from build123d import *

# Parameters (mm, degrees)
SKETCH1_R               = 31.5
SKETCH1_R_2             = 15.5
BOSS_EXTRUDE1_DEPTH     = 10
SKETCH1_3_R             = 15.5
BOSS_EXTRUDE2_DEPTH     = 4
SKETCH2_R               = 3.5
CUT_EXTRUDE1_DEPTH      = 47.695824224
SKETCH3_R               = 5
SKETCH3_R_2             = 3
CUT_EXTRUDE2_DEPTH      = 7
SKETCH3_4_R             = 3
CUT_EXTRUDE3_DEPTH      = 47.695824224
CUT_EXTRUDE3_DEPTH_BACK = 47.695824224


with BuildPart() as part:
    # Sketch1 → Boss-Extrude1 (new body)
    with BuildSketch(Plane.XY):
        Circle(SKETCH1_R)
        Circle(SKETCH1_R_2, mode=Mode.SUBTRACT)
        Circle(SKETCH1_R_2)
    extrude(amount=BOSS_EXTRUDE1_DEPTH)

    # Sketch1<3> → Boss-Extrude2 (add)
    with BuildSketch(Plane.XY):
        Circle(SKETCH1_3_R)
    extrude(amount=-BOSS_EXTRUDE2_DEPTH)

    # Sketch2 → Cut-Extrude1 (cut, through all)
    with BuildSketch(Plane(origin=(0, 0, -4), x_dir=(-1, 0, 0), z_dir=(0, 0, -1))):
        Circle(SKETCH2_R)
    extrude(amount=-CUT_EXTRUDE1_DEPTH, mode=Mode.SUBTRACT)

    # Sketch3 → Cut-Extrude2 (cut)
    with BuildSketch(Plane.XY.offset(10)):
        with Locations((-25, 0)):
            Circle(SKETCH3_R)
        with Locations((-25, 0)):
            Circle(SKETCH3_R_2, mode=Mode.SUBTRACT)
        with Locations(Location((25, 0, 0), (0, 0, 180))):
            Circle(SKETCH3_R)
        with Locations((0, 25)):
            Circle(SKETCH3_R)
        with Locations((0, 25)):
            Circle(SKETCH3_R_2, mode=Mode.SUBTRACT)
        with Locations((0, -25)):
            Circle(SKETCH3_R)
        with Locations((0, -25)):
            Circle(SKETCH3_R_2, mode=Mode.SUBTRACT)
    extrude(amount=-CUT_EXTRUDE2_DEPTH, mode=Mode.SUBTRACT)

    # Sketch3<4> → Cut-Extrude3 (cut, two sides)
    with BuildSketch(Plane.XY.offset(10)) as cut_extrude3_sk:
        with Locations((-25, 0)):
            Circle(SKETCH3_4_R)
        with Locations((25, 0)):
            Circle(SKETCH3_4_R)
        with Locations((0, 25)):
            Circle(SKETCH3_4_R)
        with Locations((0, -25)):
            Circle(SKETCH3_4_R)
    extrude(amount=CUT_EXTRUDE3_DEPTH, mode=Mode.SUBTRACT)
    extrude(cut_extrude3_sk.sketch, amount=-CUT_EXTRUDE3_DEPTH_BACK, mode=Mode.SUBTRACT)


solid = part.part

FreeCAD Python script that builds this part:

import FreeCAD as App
import Part
import Sketcher
Q = App.Units.Quantity

doc = App.newDocument("Part")
body = doc.addObject("PartDesign::Body", "Body")

sketch1 = body.newObject("Sketcher::SketchObject", "Sketch")
sketch1.AttachmentSupport = (doc.getObject("XY_Plane"), [""])
sketch1.MapMode = "FlatFace"
sketch1.addGeometry(Part.Circle(App.Vector(0, 0, 0), App.Vector(0, 0, 1), 32), False)
sketch1.addConstraint([
    Sketcher.Constraint("Coincident", 0, 3, -1, 1),
    Sketcher.Constraint("Diameter", 0, Q("63 mm")),
])
pad1 = body.newObject("PartDesign::Pad", "Pad")
pad1.Profile = sketch1
pad1.Length = 10

sketch2 = body.newObject("Sketcher::SketchObject", "Sketch001")
sketch2.AttachmentSupport = (doc.getObject("XY_Plane"), [""])
sketch2.MapMode = "FlatFace"
sketch2.addGeometry(Part.Circle(App.Vector(0, 0, 0), App.Vector(0, 0, 1), 16), False)
sketch2.addConstraint([
    Sketcher.Constraint("Coincident", 0, 3, -1, 1),
    Sketcher.Constraint("Diameter", 0, Q("31 mm")),
])
pad2 = body.newObject("PartDesign::Pad", "Pad001")
pad2.Profile = sketch2
pad2.Length = 4
pad2.Reversed = True

sketch3 = body.newObject("Sketcher::SketchObject", "Sketch002")
sketch3.AttachmentSupport = (doc.getObject("XY_Plane"), [""])
sketch3.MapMode = "FlatFace"
sketch3.AttachmentOffset = App.Placement(App.Vector(0, 0, -4), App.Rotation())
sketch3.addGeometry(Part.Circle(App.Vector(0, 0, 0), App.Vector(0, 0, 1), 3.5), False)
sketch3.addConstraint([
    Sketcher.Constraint("Coincident", 0, 3, -1, 1),
    Sketcher.Constraint("Diameter", 0, Q("7 mm")),
])
pocket1 = body.newObject("PartDesign::Pocket", "Pocket")
pocket1.Profile = sketch3
pocket1.Type = "ThroughAll"
pocket1.Reversed = True

sketch4 = body.newObject("Sketcher::SketchObject", "Sketch003")
sketch4.AttachmentSupport = (doc.getObject("XY_Plane"), [""])
sketch4.MapMode = "FlatFace"
sketch4.AttachmentOffset = App.Placement(App.Vector(0, 0, 10), App.Rotation())
sketch4.addGeometry([
    Part.Circle(App.Vector(-25, 0, 0), App.Vector(0, 0, 1), 5),
    Part.Circle(App.Vector(-25, 0, 0), App.Vector(0, 0, 1), 3),
    Part.Circle(App.Vector(25, 0, 0), App.Vector(0, 0, 1), 5),
    Part.Circle(App.Vector(0, 25, 0), App.Vector(0, 0, 1), 5),
    Part.Circle(App.Vector(0, 25, 0), App.Vector(0, 0, 1), 3),
    Part.Circle(App.Vector(0, -25, 0), App.Vector(0, 0, 1), 5),
    Part.Circle(App.Vector(0, -25, 0), App.Vector(0, 0, 1), 3),
], False)
sketch4.addConstraint([
    Sketcher.Constraint("Coincident", 1, 3, 0, 3),
    Sketcher.Constraint("Coincident", 4, 3, 3, 3),
    Sketcher.Constraint("Coincident", 6, 3, 5, 3),
    Sketcher.Constraint("Equal", 0, 2),
    Sketcher.Constraint("Equal", 2, 3),
    Sketcher.Constraint("Equal", 1, 4),
    Sketcher.Constraint("Equal", 3, 5),
    Sketcher.Constraint("Equal", 4, 6),
    Sketcher.Constraint("Symmetric", 0, 3, 2, 3, -1, 1),
    Sketcher.Constraint("Symmetric", 3, 3, 5, 3, -1, 1),
    Sketcher.Constraint("PointOnObject", 0, 3, -1),
    Sketcher.Constraint("PointOnObject", 3, 3, -2),
    Sketcher.Constraint("Diameter", 0, Q("10 mm")),
    Sketcher.Constraint("Diameter", 1, Q("6 mm")),
    Sketcher.Constraint("DistanceX", 0, 3, -1, 1, Q("25 mm")),
    Sketcher.Constraint("DistanceY", -1, 1, 3, 3, Q("25 mm")),
])
pocket2 = body.newObject("PartDesign::Pocket", "Pocket001")
pocket2.Profile = sketch4
pocket2.Length = 7

sketch5 = body.newObject("Sketcher::SketchObject", "Sketch004")
sketch5.AttachmentSupport = (doc.getObject("XY_Plane"), [""])
sketch5.MapMode = "FlatFace"
sketch5.AttachmentOffset = App.Placement(App.Vector(0, 0, 10), App.Rotation())
sketch5.addGeometry([
    Part.Circle(App.Vector(-25, 0, 0), App.Vector(0, 0, 1), 3),
    Part.Circle(App.Vector(25, 0, 0), App.Vector(0, 0, 1), 3),
    Part.Circle(App.Vector(0, 25, 0), App.Vector(0, 0, 1), 3),
    Part.Circle(App.Vector(0, -25, 0), App.Vector(0, 0, 1), 3),
], False)
sketch5.addConstraint([
    Sketcher.Constraint("Equal", 0, 1),
    Sketcher.Constraint("Equal", 1, 2),
    Sketcher.Constraint("Equal", 2, 3),
    Sketcher.Constraint("Symmetric", 0, 3, 1, 3, -1, 1),
    Sketcher.Constraint("Symmetric", 2, 3, 3, 3, -1, 1),
    Sketcher.Constraint("PointOnObject", 0, 3, -1),
    Sketcher.Constraint("PointOnObject", 2, 3, -2),
    Sketcher.Constraint("Diameter", 0, Q("6 mm")),
    Sketcher.Constraint("DistanceX", 0, 3, -1, 1, Q("25 mm")),
    Sketcher.Constraint("DistanceY", -1, 1, 2, 3, Q("25 mm")),
])
pocket3 = body.newObject("PartDesign::Pocket", "Pocket002")
pocket3.Profile = sketch5
pocket3.Type = "ThroughAll"
pocket3.Midplane = True

doc.recompute()
